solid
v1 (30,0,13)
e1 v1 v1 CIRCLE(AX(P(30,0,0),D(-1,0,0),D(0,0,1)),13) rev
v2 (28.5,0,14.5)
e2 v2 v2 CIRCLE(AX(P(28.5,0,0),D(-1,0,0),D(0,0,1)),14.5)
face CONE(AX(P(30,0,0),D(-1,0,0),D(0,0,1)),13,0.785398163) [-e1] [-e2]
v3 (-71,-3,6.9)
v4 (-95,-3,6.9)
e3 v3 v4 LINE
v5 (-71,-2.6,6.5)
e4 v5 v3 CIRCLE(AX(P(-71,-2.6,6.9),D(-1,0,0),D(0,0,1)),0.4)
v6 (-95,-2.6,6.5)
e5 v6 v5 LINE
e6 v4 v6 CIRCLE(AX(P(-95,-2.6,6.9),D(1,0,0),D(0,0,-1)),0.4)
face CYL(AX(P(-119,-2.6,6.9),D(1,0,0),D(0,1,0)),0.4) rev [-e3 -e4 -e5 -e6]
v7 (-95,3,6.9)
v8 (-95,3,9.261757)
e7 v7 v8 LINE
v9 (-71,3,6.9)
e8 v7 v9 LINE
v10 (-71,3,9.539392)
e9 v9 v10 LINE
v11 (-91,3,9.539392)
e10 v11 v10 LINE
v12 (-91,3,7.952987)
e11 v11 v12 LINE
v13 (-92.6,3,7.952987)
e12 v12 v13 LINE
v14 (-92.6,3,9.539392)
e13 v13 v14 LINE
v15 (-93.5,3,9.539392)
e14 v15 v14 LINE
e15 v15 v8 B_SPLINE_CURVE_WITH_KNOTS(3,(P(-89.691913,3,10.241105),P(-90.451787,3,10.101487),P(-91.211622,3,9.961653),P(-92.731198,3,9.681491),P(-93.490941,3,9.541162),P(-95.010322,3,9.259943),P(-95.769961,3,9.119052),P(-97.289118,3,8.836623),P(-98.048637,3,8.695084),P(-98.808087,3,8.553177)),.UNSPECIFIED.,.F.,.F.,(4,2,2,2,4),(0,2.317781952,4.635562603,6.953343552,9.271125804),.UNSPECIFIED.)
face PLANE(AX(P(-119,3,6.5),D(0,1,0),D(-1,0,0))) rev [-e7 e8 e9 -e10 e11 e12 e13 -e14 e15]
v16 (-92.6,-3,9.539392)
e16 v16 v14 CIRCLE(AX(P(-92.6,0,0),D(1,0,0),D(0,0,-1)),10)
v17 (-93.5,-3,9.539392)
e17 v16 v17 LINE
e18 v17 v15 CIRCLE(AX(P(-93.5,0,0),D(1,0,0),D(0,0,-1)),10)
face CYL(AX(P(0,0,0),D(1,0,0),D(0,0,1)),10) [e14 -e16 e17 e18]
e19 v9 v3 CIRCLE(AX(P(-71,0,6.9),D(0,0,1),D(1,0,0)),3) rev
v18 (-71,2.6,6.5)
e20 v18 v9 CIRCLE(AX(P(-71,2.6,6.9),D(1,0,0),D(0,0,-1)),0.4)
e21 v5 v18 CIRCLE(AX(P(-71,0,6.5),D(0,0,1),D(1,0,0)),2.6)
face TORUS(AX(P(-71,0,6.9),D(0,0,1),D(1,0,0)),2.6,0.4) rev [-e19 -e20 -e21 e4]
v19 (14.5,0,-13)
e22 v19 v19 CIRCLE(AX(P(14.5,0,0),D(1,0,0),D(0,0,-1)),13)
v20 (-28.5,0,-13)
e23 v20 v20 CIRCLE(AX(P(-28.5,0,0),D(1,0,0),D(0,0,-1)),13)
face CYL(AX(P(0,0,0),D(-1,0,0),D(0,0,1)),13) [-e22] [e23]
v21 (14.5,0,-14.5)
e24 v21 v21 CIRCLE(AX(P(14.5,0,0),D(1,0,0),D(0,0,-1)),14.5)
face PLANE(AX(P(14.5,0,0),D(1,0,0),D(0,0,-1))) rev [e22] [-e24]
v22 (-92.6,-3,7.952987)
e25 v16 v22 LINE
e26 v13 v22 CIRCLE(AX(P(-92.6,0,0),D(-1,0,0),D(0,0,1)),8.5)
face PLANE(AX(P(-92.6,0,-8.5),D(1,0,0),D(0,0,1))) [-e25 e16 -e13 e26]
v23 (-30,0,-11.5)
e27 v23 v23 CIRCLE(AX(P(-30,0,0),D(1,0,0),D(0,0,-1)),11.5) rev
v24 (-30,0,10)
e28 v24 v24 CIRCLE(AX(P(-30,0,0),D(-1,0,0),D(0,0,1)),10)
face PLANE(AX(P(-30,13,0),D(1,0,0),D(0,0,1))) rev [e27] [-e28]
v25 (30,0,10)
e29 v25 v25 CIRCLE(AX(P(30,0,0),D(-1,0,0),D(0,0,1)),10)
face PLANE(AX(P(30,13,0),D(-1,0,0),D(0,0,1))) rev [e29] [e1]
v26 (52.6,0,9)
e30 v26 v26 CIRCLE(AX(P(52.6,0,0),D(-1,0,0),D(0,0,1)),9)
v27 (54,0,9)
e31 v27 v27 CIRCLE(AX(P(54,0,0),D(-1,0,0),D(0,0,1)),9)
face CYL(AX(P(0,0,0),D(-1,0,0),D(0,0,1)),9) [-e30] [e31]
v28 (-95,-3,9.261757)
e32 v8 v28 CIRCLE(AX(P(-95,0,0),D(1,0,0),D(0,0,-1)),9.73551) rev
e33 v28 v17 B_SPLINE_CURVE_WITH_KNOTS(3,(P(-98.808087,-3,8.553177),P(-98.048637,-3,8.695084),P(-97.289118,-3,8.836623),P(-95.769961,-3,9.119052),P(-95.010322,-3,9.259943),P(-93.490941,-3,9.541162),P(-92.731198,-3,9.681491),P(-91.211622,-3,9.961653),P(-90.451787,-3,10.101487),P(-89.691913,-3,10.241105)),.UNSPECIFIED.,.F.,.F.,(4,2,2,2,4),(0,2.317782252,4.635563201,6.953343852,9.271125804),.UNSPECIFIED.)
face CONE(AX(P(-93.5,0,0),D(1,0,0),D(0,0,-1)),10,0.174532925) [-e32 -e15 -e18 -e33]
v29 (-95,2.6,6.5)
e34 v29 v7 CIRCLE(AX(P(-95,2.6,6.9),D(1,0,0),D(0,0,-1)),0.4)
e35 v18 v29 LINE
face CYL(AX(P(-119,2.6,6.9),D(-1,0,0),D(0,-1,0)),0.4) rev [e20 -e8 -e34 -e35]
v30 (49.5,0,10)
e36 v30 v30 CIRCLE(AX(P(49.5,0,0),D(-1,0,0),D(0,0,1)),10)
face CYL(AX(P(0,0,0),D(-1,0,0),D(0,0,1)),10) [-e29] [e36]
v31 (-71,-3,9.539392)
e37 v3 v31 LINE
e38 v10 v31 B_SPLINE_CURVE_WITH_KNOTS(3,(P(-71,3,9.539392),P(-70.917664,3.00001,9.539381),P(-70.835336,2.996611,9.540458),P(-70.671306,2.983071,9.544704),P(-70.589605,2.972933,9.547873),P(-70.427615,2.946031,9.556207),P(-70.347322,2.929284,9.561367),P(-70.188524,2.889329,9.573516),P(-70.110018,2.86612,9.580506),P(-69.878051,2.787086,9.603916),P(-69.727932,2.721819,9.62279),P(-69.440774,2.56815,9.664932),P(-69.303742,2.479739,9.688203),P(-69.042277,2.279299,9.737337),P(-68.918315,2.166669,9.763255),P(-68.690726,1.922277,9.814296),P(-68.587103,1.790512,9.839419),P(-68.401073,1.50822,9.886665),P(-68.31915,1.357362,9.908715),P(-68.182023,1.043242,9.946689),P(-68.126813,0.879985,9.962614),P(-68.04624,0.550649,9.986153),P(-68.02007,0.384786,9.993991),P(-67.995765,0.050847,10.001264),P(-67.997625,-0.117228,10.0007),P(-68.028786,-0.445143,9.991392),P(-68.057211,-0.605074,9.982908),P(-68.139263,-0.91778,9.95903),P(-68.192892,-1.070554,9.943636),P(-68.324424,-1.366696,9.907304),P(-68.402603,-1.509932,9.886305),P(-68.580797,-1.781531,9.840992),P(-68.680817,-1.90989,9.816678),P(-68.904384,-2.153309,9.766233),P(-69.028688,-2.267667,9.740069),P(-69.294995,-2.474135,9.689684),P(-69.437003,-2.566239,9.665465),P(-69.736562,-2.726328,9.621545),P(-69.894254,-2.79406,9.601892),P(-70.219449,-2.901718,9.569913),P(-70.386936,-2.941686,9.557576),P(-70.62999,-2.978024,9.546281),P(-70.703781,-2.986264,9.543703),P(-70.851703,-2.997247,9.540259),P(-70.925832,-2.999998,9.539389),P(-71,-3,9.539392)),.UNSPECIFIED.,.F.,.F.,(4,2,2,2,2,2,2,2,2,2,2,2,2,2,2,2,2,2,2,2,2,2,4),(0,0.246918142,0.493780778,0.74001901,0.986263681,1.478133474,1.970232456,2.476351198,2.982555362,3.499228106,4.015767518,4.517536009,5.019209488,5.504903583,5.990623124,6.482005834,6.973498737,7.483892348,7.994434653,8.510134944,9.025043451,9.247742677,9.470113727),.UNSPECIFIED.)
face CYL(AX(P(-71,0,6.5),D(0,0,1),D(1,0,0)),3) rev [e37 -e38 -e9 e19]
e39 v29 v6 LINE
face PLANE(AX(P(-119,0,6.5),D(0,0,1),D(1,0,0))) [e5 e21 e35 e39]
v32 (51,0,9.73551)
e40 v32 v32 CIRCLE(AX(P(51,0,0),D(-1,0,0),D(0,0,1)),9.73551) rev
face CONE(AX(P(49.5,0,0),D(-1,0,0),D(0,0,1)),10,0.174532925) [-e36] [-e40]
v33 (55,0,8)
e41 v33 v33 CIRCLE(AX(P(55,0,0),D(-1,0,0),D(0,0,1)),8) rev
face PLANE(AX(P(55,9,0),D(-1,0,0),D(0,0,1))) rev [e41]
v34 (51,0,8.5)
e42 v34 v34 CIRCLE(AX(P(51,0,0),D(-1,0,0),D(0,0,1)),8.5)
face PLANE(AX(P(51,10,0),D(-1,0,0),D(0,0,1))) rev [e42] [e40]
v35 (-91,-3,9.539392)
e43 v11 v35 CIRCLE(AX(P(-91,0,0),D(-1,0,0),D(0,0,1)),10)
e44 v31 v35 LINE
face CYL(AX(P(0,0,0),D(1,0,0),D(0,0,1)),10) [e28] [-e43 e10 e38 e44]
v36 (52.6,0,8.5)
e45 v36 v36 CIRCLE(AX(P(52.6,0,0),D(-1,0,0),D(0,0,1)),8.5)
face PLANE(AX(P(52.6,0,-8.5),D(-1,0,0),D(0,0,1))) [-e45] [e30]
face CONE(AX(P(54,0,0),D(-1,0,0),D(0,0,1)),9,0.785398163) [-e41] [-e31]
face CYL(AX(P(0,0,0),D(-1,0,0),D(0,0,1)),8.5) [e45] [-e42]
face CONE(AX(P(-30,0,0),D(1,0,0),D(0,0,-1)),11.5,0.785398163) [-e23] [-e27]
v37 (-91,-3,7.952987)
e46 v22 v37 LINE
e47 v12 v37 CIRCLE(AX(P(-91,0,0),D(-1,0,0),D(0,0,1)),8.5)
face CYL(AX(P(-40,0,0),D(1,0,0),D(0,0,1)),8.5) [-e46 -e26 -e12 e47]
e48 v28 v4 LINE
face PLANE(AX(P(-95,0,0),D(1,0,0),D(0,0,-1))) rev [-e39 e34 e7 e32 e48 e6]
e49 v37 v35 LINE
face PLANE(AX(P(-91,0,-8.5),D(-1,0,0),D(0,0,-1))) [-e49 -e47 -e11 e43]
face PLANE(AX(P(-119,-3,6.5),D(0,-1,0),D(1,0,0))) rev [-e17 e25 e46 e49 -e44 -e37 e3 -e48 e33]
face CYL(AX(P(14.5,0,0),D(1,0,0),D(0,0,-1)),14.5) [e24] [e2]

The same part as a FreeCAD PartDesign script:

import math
import FreeCAD as App
import Part
import Sketcher
Q = App.Units.Quantity


def edges_at(feature, points):
    """Names of the edges that pass closest to the given points."""
    edges = feature.Shape.Edges
    near = lambda p: min(range(len(edges)), key=lambda i: edges[i].distToShape(Part.Vertex(*p))[0])
    return sorted({f"Edge{near(p) + 1}" for p in points})


def add_polygon(sketch, points):
    """Adds a closed chain of lines whose ends are joined by coincident constraints."""
    first, n = sketch.GeometryCount, len(points)
    for a, b in zip(points, points[1:] + points[:1]):
        sketch.addGeometry(Part.LineSegment(App.Vector(*a, 0), App.Vector(*b, 0)), False)
    for i in range(n):
        sketch.addConstraint(Sketcher.Constraint("Coincident", first + i, 2, first + (i + 1) % n, 1))

doc = App.newDocument("Part")
body = doc.addObject("PartDesign::Body", "Body")

# Sketch on XY plane
sketch1 = body.newObject("Sketcher::SketchObject", "Sketch")
sketch1.AttachmentSupport = (doc.getObject("XY_Plane"), [""])
sketch1.MapMode = "FlatFace"
add_polygon(sketch1, [(0, 13), (0, 0), (55, 0), (55, 9), (51, 9), (51, 10), (30, 10), (30, 13)])  # lines 0-7
sketch1.addConstraint([
    Sketcher.Constraint("Vertical", 0),
    Sketcher.Constraint("Horizontal", 1),
    Sketcher.Constraint("Vertical", 2),
    Sketcher.Constraint("Horizontal", 3),
    Sketcher.Constraint("Vertical", 4),
    Sketcher.Constraint("Horizontal", 5),
    Sketcher.Constraint("Vertical", 6),
    Sketcher.Constraint("Horizontal", 7),
    Sketcher.Constraint("Coincident", 0, 2, -1, 1),
    Sketcher.Constraint("DistanceX", 1, 1, 1, 2, Q("55 mm")),
    Sketcher.Constraint("DistanceX", 3, 2, 3, 1, Q("4 mm")),
    Sketcher.Constraint("DistanceX", 5, 2, 5, 1, Q("21 mm")),
    Sketcher.Constraint("DistanceY", 0, 2, 0, 1, Q("13 mm")),
    Sketcher.Constraint("DistanceY", 2, 1, 2, 2, Q("9 mm")),
    Sketcher.Constraint("DistanceY", 4, 1, 4, 2, Q("1 mm")),
])
revolution = body.newObject("PartDesign::Revolution", "Revolution")
revolution.Profile = sketch1
revolution.ReferenceAxis = (sketch1, ["H_Axis"])
revolution.Angle = 360
body2 = doc.addObject("PartDesign::Body", "Body001")
doc.recompute()

body2.BaseFeature = body
doc.recompute()

mirroring = doc.addObject("Part::Mirroring", "Mirroring")
mirroring.Source = body
mirroring.Base = App.Vector(0, 0, 0)
mirroring.Normal = App.Vector(1, 0, 0)
body3 = doc.addObject("PartDesign::Body", "Body002")
body3.BaseFeature = mirroring
boolean = body2.newObject("PartDesign::Boolean", "Boolean")
boolean.Type = "Fuse"
boolean.addObjects([body3])
doc.recompute()

chamfer = body2.newObject("PartDesign::Chamfer", "Chamfer")
chamfer.Base = (boolean, edges_at(boolean, [(51, 0, -10)]))
chamfer.ChamferType = "Two distances"
chamfer.Size = 1.5
chamfer.Size2 = 0.26449
chamfer.FlipDirection = True
doc.recompute()

chamfer2 = body2.newObject("PartDesign::Chamfer", "Chamfer001")
chamfer2.Base = (chamfer, edges_at(chamfer, [(55, 0, -9)]))
chamfer2.Size = 1

# Sketch on XZ plane
sketch2 = body2.newObject("Sketcher::SketchObject", "Sketch001")
sketch2.AttachmentSupport = (doc.getObject("XZ_Plane001"), [""])
sketch2.MapMode = "FlatFace"
add_polygon(sketch2, [(51, -10.9), (51, -8.5), (52.6, -8.5), (52.6, -10.9)])  # lines 0-3
sketch2.addConstraint([
    Sketcher.Constraint("Vertical", 0),
    Sketcher.Constraint("Horizontal", 1),
    Sketcher.Constraint("Vertical", 2),
    Sketcher.Constraint("Horizontal", 3),
    Sketcher.Constraint("DistanceX", 1, 1, 1, 2, Q("1.6 mm")),
    Sketcher.Constraint("DistanceX", -1, 1, 0, 2, Q("51 mm")),
    Sketcher.Constraint("DistanceY", 0, 2, -1, 1, Q("8.5 mm")),
    Sketcher.Constraint("DistanceY", 0, 1, 0, 2, Q("2.408745 mm")),
])
groove = body2.newObject("PartDesign::Groove", "Groove")
groove.Profile = sketch2
groove.ReferenceAxis = (sketch2, ["H_Axis"])
groove.Angle = 360
doc.recompute()

mirrored = body2.newObject("PartDesign::Mirrored", "Mirrored")
mirrored.Originals = [groove]
mirrored.MirrorPlane = (doc.getObject("YZ_Plane001"), [""])
body2.Tip = mirrored

# Sketch on YZ plane
sketch3 = body2.newObject("Sketcher::SketchObject", "Sketch002")
sketch3.AttachmentSupport = (doc.getObject("YZ_Plane001"), [""])
sketch3.MapMode = "FlatFace"
sketch3.AttachmentOffset = App.Placement(App.Vector(0, 0, -52.6), App.Rotation())
sketch3.addGeometry(Part.Circle(App.Vector(0, 0, 0), App.Vector(0, 0, 1), 10), False)
sketch3.addConstraint([
    Sketcher.Constraint("Coincident", 0, 3, -1, 1),
    Sketcher.Constraint("Diameter", 0, Q("20 mm")),
])
pad1 = body2.newObject("PartDesign::Pad", "Pad")
pad1.Profile = sketch3
pad1.Length = 42.4
pad1.Reversed = True

# Sketch on YZ plane
sketch4 = body2.newObject("Sketcher::SketchObject", "Sketch003")
sketch4.AttachmentSupport = (doc.getObject("YZ_Plane001"), [""])
sketch4.MapMode = "FlatFace"
sketch4.AttachmentOffset = App.Placement(App.Vector(0, 0, -52.6), App.Rotation())
sketch4.addGeometry(Part.Circle(App.Vector(0, 0, 0), App.Vector(0, 0, 1), 10), False)
sketch4.addConstraint([
    Sketcher.Constraint("Coincident", 0, 3, -1, 1),
    Sketcher.Constraint("Diameter", 0, Q("20 mm")),
])
pad2 = body2.newObject("PartDesign::Pad", "Pad001")
pad2.Profile = sketch4
pad2.Length = 1.6
doc.recompute()

chamfer3 = body2.newObject("PartDesign::Chamfer", "Chamfer002")
chamfer3.Base = (pad2, edges_at(pad2, [(-95, 0, -10)]))
chamfer3.ChamferType = "Two distances"
chamfer3.Size = 1.5
chamfer3.Size2 = 0.26449
doc.recompute()

datumplane = body2.newObject("PartDesign::Plane", "DatumPlane")
datumplane.AttachmentSupport = (doc.getObject("YZ_Plane001"), [""])
datumplane.MapMode = "FlatFace"
datumplane.AttachmentOffset = App.Placement(App.Vector(0, 0, -20), App.Rotation())
mirrored2 = body2.newObject("PartDesign::Mirrored", "Mirrored001")
mirrored2.Originals = [groove]
mirrored2.MirrorPlane = (datumplane, [""])
body2.Tip = mirrored2

# Sketch on XY plane
sketch5 = body2.newObject("Sketcher::SketchObject", "Sketch004")
sketch5.AttachmentSupport = (doc.getObject("XY_Plane001"), [""])
sketch5.MapMode = "FlatFace"
sketch5.AttachmentOffset = App.Placement(App.Vector(0, 0, 10), App.Rotation())
sketch5.addGeometry([
    Part.LineSegment(App.Vector(-71, 3, 0), App.Vector(-119, 3, 0)),
    Part.ArcOfCircle(Part.Circle(App.Vector(-119, 0, 0), App.Vector(0, 0, 1), 3), math.radians(90), math.radians(270)),
    Part.LineSegment(App.Vector(-119, -3, 0), App.Vector(-71, -3, 0)),
    Part.ArcOfCircle(Part.Circle(App.Vector(-71, 0, 0), App.Vector(0, 0, 1), 3), math.radians(-90), math.radians(90)),
], False)
sketch5.addConstraint([
    Sketcher.Constraint("Tangent", 0, 2, 1, 1),
    Sketcher.Constraint("Tangent", 1, 2, 2, 1),
    Sketcher.Constraint("Tangent", 2, 2, 3, 1),
    Sketcher.Constraint("Tangent", 3, 2, 0, 1),
    Sketcher.Constraint("Horizontal", 0),
    Sketcher.Constraint("Horizontal", 2),
    Sketcher.Constraint("PointOnObject", 1, 3, -1),
    Sketcher.Constraint("Radius", 1, Q("3 mm")),
    Sketcher.Constraint("DistanceX", 0, 2, 0, 1, Q("48 mm")),
    Sketcher.Constraint("DistanceX", 1, 3, -1, 1, Q("119 mm")),
])
pocket1 = body2.newObject("PartDesign::Pocket", "Pocket")
pocket1.Profile = sketch5
pocket1.Length = 3.5
doc.recompute()

chamfer4 = body2.newObject("PartDesign::Chamfer", "Chamfer003")
chamfer4.Base = (pocket1, edges_at(pocket1, [(-30, 0, -13)]))
chamfer4.Size = 1.5

# Sketch on YZ plane
sketch6 = body2.newObject("Sketcher::SketchObject", "Sketch005")
sketch6.AttachmentSupport = (doc.getObject("YZ_Plane001"), [""])
sketch6.MapMode = "FlatFace"
sketch6.AttachmentOffset = App.Placement(App.Vector(0, 0, 14.5), App.Rotation())
sketch6.addGeometry([
    Part.Circle(App.Vector(0, 0, 0), App.Vector(0, 0, 1), 14),
    Part.Circle(App.Vector(0, 0, 0), App.Vector(0, 0, 1), 13),
], False)
sketch6.addConstraint([
    Sketcher.Constraint("Coincident", 0, 3, -1, 1),
    Sketcher.Constraint("Coincident", 1, 3, -1, 1),
    Sketcher.Constraint("Diameter", 0, Q("29 mm")),
    Sketcher.Constraint("Diameter", 1, Q("26 mm")),
])
pad3 = body2.newObject("PartDesign::Pad", "Pad002")
pad3.Profile = sketch6
pad3.Length = 15.5
doc.recompute()

chamfer5 = body2.newObject("PartDesign::Chamfer", "Chamfer004")
chamfer5.Base = (pad3, edges_at(pad3, [(30, 0, 14.5)]))
chamfer5.Size = 1.5
doc.recompute()

fillet = body2.newObject("PartDesign::Fillet", "Fillet")
fillet.Base = (chamfer5, edges_at(chamfer5, [(-68, 0, 6.5), (-83, 3, 6.5), (-83, -3, 6.5)]))
fillet.Radius = 0.4
mirroring.Visibility = False

doc.recompute()
